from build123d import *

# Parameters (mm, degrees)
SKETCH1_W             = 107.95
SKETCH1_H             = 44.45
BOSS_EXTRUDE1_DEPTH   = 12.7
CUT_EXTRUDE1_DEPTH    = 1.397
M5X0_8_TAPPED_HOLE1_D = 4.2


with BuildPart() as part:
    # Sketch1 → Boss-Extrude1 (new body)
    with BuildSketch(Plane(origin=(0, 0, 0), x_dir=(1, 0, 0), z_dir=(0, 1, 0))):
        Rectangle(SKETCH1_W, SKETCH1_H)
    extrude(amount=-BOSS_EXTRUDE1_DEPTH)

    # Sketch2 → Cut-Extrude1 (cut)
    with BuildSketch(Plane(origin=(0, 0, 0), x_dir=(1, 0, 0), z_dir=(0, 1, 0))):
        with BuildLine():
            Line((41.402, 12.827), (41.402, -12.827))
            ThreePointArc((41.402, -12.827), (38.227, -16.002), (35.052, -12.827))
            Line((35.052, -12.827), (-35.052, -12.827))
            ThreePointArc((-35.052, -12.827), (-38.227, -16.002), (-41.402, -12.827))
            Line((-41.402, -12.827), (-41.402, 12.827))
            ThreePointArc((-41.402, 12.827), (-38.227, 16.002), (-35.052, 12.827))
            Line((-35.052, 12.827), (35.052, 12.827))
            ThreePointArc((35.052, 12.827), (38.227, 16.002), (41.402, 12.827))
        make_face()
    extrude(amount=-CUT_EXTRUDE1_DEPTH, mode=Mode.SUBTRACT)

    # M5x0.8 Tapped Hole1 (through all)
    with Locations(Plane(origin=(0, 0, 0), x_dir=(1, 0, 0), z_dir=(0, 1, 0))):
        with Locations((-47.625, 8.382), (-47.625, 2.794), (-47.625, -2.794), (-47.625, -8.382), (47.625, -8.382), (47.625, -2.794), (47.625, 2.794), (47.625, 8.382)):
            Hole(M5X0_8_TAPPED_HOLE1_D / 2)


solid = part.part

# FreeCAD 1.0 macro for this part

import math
import FreeCAD as App
import Part
import Sketcher
Q = App.Units.Quantity

doc = App.newDocument("Part")
params = doc.addObject("Spreadsheet::Sheet", "Params")
for row, (alias, value) in enumerate([
    ("sketch1_width", "4.25 in"),
    ("sketch1_height", "1.75 in"),
    ("pad1_length", "0.5 in"),
    ("sketch2_radius", "0.125 in"),
    ("sketch2_width", "2.76 in"),
    ("sketch2_height", "1.01 in"),
    ("pocket1_length", "0.055 in"),
    ("hole_diameter", "4.2 mm"),
], start=1):
    params.set(f"A{row}", alias)
    params.set(f"B{row}", "=" + value)
    params.setAlias(f"B{row}", alias)

body = doc.addObject("PartDesign::Body", "Body")

# Sketch on XZ plane
sketch1 = body.newObject("Sketcher::SketchObject", "Sketch")
sketch1.AttachmentSupport = (doc.getObject("XZ_Plane"), [""])
sketch1.MapMode = "FlatFace"
sketch1.addGeometry([
    Part.LineSegment(App.Vector(-54, -22, 0), App.Vector(-54, 22, 0)),
    Part.LineSegment(App.Vector(-54, 22, 0), App.Vector(54, 22, 0)),
    Part.LineSegment(App.Vector(54, 22, 0), App.Vector(54, -22, 0)),
    Part.LineSegment(App.Vector(54, -22, 0), App.Vector(-54, -22, 0)),
], False)
sketch1.addConstraint([
    Sketcher.Constraint("Coincident", 0, 2, 1, 1),
    Sketcher.Constraint("Coincident", 1, 2, 2, 1),
    Sketcher.Constraint("Coincident", 2, 2, 3, 1),
    Sketcher.Constraint("Coincident", 3, 2, 0, 1),
    Sketcher.Constraint("Vertical", 0),
    Sketcher.Constraint("Horizontal", 1),
    Sketcher.Constraint("Vertical", 2),
    Sketcher.Constraint("Horizontal", 3),
    Sketcher.Constraint("Symmetric", 0, 2, 2, 2, -1, 1),
    Sketcher.Constraint("DistanceX", 1, 1, 1, 2, Q("4.25 in")),
    Sketcher.Constraint("DistanceY", 0, 1, 0, 2, Q("1.75 in")),
])
sketch1.setExpression("Constraints[9]", "Params.sketch1_width")
sketch1.setExpression("Constraints[10]", "Params.sketch1_height")
pad1 = body.newObject("PartDesign::Pad", "Pad")
pad1.Profile = sketch1
pad1.setExpression("Length", "Params.pad1_length")

# Sketch on XZ plane
sketch2 = body.newObject("Sketcher::SketchObject", "Sketch001")
sketch2.AttachmentSupport = (doc.getObject("XZ_Plane"), [""])
sketch2.MapMode = "FlatFace"
sketch2.addGeometry([
    Part.LineSegment(App.Vector(41.4, 12.8, 0), App.Vector(41.4, -12.8, 0)),  # 0
    Part.ArcOfCircle(Part.Circle(App.Vector(38.2, -12.8, 0), App.Vector(0, 0, 1), 3.2), math.radians(180), math.radians(360)),  # 1
    Part.LineSegment(App.Vector(35.1, -12.8, 0), App.Vector(-35.1, -12.8, 0)),  # 2
    Part.ArcOfCircle(Part.Circle(App.Vector(-38.2, -12.8, 0), App.Vector(0, 0, 1), 3.2), math.radians(180), math.radians(360)),  # 3
    Part.LineSegment(App.Vector(-41.4, -12.8, 0), App.Vector(-41.4, 12.8, 0)),  # 4
    Part.ArcOfCircle(Part.Circle(App.Vector(-38.2, 12.8, 0), App.Vector(0, 0, 1), 3.2), math.radians(0), math.radians(180)),  # 5
    Part.LineSegment(App.Vector(-35.1, 12.8, 0), App.Vector(35.1, 12.8, 0)),  # 6
    Part.ArcOfCircle(Part.Circle(App.Vector(38.2, 12.8, 0), App.Vector(0, 0, 1), 3.2), math.radians(0), math.radians(180)),  # 7
], False)
sketch2.addConstraint([
    Sketcher.Constraint("Tangent", 0, 2, 1, 2),
    Sketcher.Constraint("Coincident", 1, 1, 2, 1),
    Sketcher.Constraint("Coincident", 2, 2, 3, 2),
    Sketcher.Constraint("Tangent", 3, 1, 4, 1),
    Sketcher.Constraint("Tangent", 4, 2, 5, 2),
    Sketcher.Constraint("Coincident", 5, 1, 6, 1),
    Sketcher.Constraint("Coincident", 6, 2, 7, 2),
    Sketcher.Constraint("Tangent", 7, 1, 0, 1),
    Sketcher.Constraint("Vertical", 0),
    Sketcher.Constraint("Horizontal", 2),
    Sketcher.Constraint("Vertical", 4),
    Sketcher.Constraint("Horizontal", 6),
    Sketcher.Constraint("Equal", 1, 3),
    Sketcher.Constraint("Equal", 3, 5),
    Sketcher.Constraint("Equal", 5, 7),
    Sketcher.Constraint("Symmetric", 1, 3, 5, 3, -1, 1),
    Sketcher.Constraint("Horizontal", 1, 3, 3, 3),
    Sketcher.Constraint("Horizontal", 5, 3, 7, 3),
    Sketcher.Constraint("Horizontal", 0, 2, 1, 1),
    Sketcher.Constraint("Horizontal", 4, 2, 5, 1),
    Sketcher.Constraint("Radius", 1, Q("0.125 in")),
    Sketcher.Constraint("DistanceX", 2, 2, 2, 1, Q("2.76 in")),
    Sketcher.Constraint("DistanceY", 0, 2, 0, 1, Q("1.01 in")),
])
sketch2.setExpression("Constraints[20]", "Params.sketch2_radius")
sketch2.setExpression("Constraints[21]", "Params.sketch2_width")
sketch2.setExpression("Constraints[22]", "Params.sketch2_height")
pocket1 = body.newObject("PartDesign::Pocket", "Pocket")
pocket1.Profile = sketch2
pocket1.setExpression("Length", "Params.pocket1_length")
pocket1.Reversed = True

# Sketch on XZ plane
sketch3 = body.newObject("Sketcher::SketchObject", "Sketch002")
sketch3.AttachmentSupport = (doc.getObject("XZ_Plane"), [""])
sketch3.MapMode = "FlatFace"
sketch3.addGeometry([
    Part.Circle(App.Vector(-47.6, -8.4, 0), App.Vector(0, 0, 1), 2.1),  # 0
    Part.Circle(App.Vector(-47.6, -2.8, 0), App.Vector(0, 0, 1), 2.1),  # 1
    Part.Circle(App.Vector(-47.6, 2.8, 0), App.Vector(0, 0, 1), 2.1),  # 2
    Part.Circle(App.Vector(-47.6, 8.4, 0), App.Vector(0, 0, 1), 2.1),  # 3
    Part.Circle(App.Vector(47.6, 8.4, 0), App.Vector(0, 0, 1), 2.1),  # 4
    Part.Circle(App.Vector(47.6, 2.8, 0), App.Vector(0, 0, 1), 2.1),  # 5
    Part.Circle(App.Vector(47.6, -2.8, 0), App.Vector(0, 0, 1), 2.1),  # 6
    Part.Circle(App.Vector(47.6, -8.4, 0), App.Vector(0, 0, 1), 2.1),  # 7
], False)
sketch3.addConstraint([
    Sketcher.Constraint("Equal", 0, 1),
    Sketcher.Constraint("Equal", 1, 2),
    Sketcher.Constraint("Equal", 2, 3),
    Sketcher.Constraint("Equal", 3, 4),
    Sketcher.Constraint("Equal", 4, 5),
    Sketcher.Constraint("Equal", 5, 6),
    Sketcher.Constraint("Equal", 6, 7),
    Sketcher.Constraint("Symmetric", 0, 3, 4, 3, -1, 1),
    Sketcher.Constraint("Symmetric", 1, 3, 5, 3, -1, 1),
    Sketcher.Constraint("Symmetric", 2, 3, 6, 3, -1, 1),
    Sketcher.Constraint("Symmetric", 3, 3, 7, 3, -1, 1),
    Sketcher.Constraint("Symmetric", 3, 3, 4, 3, -2),
    Sketcher.Constraint("Symmetric", 2, 3, 5, 3, -2),
    Sketcher.Constraint("Vertical", 0, 3, 1, 3),
    Sketcher.Constraint("Diameter", 0, Q("4.2 mm")),
    Sketcher.Constraint("DistanceY", 0, 3, -1, 1, Q("0.33 in")),
    Sketcher.Constraint("DistanceY", 1, 3, -1, 1, Q("0.11 in")),
    Sketcher.Constraint("DistanceX", 3, 3, 4, 3, Q("3.75 in")),
])
doc.recompute()
hole = body.newObject("PartDesign::Hole", "Hole")
hole.Profile = sketch3
hole.ThreadType = "None"
hole.setExpression("Diameter", "Params.hole_diameter")
hole.DepthType = "ThroughAll"
hole.Reversed = True

doc.recompute()
